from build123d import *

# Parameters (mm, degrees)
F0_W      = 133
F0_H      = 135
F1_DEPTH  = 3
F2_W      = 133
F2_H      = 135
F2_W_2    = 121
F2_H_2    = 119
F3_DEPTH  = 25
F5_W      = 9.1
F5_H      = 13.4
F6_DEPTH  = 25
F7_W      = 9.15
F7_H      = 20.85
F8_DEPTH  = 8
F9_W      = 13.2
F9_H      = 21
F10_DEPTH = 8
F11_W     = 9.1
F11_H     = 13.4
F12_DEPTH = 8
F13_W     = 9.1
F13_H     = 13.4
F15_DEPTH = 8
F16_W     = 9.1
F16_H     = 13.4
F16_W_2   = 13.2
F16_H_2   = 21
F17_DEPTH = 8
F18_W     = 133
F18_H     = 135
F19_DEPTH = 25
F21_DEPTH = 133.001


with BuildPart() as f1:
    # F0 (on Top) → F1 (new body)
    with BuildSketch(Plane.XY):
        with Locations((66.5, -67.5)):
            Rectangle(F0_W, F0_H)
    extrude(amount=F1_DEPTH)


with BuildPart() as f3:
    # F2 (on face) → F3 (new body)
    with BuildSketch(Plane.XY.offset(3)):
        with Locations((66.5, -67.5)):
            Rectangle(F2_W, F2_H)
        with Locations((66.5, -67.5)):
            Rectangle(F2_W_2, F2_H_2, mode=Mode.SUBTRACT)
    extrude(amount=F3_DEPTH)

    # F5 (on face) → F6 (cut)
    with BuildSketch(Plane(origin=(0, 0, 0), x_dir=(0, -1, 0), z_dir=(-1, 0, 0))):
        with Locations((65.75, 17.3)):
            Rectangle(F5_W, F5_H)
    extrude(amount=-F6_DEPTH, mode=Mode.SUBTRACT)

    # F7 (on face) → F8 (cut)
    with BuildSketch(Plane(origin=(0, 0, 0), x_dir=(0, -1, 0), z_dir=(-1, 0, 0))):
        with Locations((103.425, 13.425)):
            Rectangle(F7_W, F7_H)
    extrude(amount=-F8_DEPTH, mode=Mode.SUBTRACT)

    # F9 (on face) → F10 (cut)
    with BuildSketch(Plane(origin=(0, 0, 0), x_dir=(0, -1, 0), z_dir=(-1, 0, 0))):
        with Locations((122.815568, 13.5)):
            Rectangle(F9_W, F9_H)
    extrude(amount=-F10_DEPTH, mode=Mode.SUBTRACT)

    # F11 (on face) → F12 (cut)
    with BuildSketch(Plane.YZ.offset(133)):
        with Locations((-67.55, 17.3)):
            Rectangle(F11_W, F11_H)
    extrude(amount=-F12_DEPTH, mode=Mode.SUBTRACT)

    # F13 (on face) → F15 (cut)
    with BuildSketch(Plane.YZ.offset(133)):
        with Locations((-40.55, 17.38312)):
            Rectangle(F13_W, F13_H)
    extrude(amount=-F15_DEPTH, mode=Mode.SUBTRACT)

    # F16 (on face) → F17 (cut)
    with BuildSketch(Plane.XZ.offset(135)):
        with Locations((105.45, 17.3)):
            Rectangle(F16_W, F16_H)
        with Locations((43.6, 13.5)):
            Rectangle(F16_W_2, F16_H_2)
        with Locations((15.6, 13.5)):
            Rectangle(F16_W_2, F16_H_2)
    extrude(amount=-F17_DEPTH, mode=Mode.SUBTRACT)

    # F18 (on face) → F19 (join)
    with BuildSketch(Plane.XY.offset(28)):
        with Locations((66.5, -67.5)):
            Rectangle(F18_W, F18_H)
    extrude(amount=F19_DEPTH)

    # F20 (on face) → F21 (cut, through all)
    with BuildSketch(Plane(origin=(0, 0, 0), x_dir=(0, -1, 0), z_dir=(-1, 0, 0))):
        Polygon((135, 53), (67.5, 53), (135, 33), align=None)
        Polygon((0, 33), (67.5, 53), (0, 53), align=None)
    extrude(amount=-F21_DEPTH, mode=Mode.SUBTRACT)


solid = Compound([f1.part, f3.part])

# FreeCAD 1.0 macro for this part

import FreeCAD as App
import Part
import Sketcher

V = App.Vector
Q = App.Units.Quantity

doc = App.newDocument("Part")
body = doc.addObject("PartDesign::Body", "Body")

sketch1 = body.newObject("Sketcher::SketchObject", "Sketch")
sketch1.AttachmentSupport = (doc.getObject("XY_Plane"), [""])
sketch1.MapMode = "FlatFace"
sketch1.addGeometry([
    Part.LineSegment(V(0, 0, 0), V(0, -135, 0)),
    Part.LineSegment(V(0, -135, 0), V(133, -135, 0)),
    Part.LineSegment(V(133, -135, 0), V(133, 0, 0)),
    Part.LineSegment(V(133, 0, 0), V(0, 0, 0)),
], False)
sketch1.addConstraint([
    Sketcher.Constraint("Coincident", 0, 2, 1, 1),
    Sketcher.Constraint("Coincident", 1, 2, 2, 1),
    Sketcher.Constraint("Coincident", 2, 2, 3, 1),
    Sketcher.Constraint("Coincident", 3, 2, 0, 1),
    Sketcher.Constraint("Vertical", 0),
    Sketcher.Constraint("Horizontal", 1),
    Sketcher.Constraint("Vertical", 2),
    Sketcher.Constraint("Horizontal", 3),
    Sketcher.Constraint("Coincident", 3, 2, -1, 1),
    Sketcher.Constraint("DistanceX", 1, 1, 1, 2, Q("133 mm")),
    Sketcher.Constraint("DistanceY", 0, 2, 0, 1, Q("135 mm")),
])
pad1 = body.newObject("PartDesign::Pad", "Pad")
pad1.Profile = sketch1
pad1.Length = 3
body2 = doc.addObject("PartDesign::Body", "Body001")

sketch2 = body2.newObject("Sketcher::SketchObject", "Sketch001")
sketch2.AttachmentSupport = (doc.getObject("XY_Plane001"), [""])
sketch2.MapMode = "FlatFace"
sketch2.AttachmentOffset = App.Placement(V(0, 0, 3), App.Rotation())
sketch2.addGeometry([
    Part.LineSegment(V(0, 0, 0), V(0, -135, 0)),
    Part.LineSegment(V(0, -135, 0), V(133, -135, 0)),
    Part.LineSegment(V(133, -135, 0), V(133, 0, 0)),
    Part.LineSegment(V(133, 0, 0), V(0, 0, 0)),
    Part.LineSegment(V(127, -127, 0), V(6, -127, 0)),
    Part.LineSegment(V(6, -127, 0), V(6, -8, 0)),
    Part.LineSegment(V(6, -8, 0), V(127, -8, 0)),
    Part.LineSegment(V(127, -8, 0), V(127, -127, 0)),
], False)
sketch2.addConstraint([
    Sketcher.Constraint("Coincident", 0, 2, 1, 1),
    Sketcher.Constraint("Coincident", 1, 2, 2, 1),
    Sketcher.Constraint("Coincident", 2, 2, 3, 1),
    Sketcher.Constraint("Coincident", 3, 2, 0, 1),
    Sketcher.Constraint("Coincident", 4, 2, 5, 1),
    Sketcher.Constraint("Coincident", 5, 2, 6, 1),
    Sketcher.Constraint("Coincident", 6, 2, 7, 1),
    Sketcher.Constraint("Coincident", 7, 2, 4, 1),
    Sketcher.Constraint("Vertical", 0),
    Sketcher.Constraint("Horizontal", 1),
    Sketcher.Constraint("Vertical", 2),
    Sketcher.Constraint("Horizontal", 3),
    Sketcher.Constraint("Horizontal", 4),
    Sketcher.Constraint("Vertical", 5),
    Sketcher.Constraint("Horizontal", 6),
    Sketcher.Constraint("Vertical", 7),
    Sketcher.Constraint("Coincident", 3, 2, -1, 1),
    Sketcher.Constraint("DistanceX", 1, 1, 1, 2, Q("133 mm")),
    Sketcher.Constraint("DistanceX", 4, 2, 4, 1, Q("121 mm")),
    Sketcher.Constraint("DistanceY", 0, 2, 0, 1, Q("135 mm")),
    Sketcher.Constraint("DistanceY", 5, 1, 5, 2, Q("119 mm")),
    Sketcher.Constraint("DistanceX", -1, 1, 4, 2, Q("6 mm")),
    Sketcher.Constraint("DistanceY", 4, 2, -1, 1, Q("127 mm")),
])
pad2 = body2.newObject("PartDesign::Pad", "Pad001")
pad2.Profile = sketch2
pad2.Length = 25

sketch3 = body2.newObject("Sketcher::SketchObject", "Sketch002")
sketch3.AttachmentSupport = (doc.getObject("YZ_Plane001"), [""])
sketch3.MapMode = "FlatFace"
sketch3.addGeometry([
    Part.LineSegment(V(-61.2, 24, 0), V(-61.2, 10.6, 0)),
    Part.LineSegment(V(-61.2, 10.6, 0), V(-70.3, 10.6, 0)),
    Part.LineSegment(V(-70.3, 10.6, 0), V(-70.3, 24, 0)),
    Part.LineSegment(V(-70.3, 24, 0), V(-61.2, 24, 0)),
], False)
sketch3.addConstraint([
    Sketcher.Constraint("Coincident", 0, 2, 1, 1),
    Sketcher.Constraint("Coincident", 1, 2, 2, 1),
    Sketcher.Constraint("Coincident", 2, 2, 3, 1),
    Sketcher.Constraint("Coincident", 3, 2, 0, 1),
    Sketcher.Constraint("Vertical", 0),
    Sketcher.Constraint("Horizontal", 1),
    Sketcher.Constraint("Vertical", 2),
    Sketcher.Constraint("Horizontal", 3),
    Sketcher.Constraint("DistanceX", 1, 2, 1, 1, Q("9.1 mm")),
    Sketcher.Constraint("DistanceY", 0, 2, 0, 1, Q("13.4 mm")),
    Sketcher.Constraint("DistanceY", -1, 1, 2, 2, Q("24 mm")),
    Sketcher.Constraint("DistanceX", 0, 2, -1, 1, Q("61.2 mm")),
])
pocket1 = body2.newObject("PartDesign::Pocket", "Pocket")
pocket1.Profile = sketch3
pocket1.Length = 25
pocket1.Reversed = True

sketch4 = body2.newObject("Sketcher::SketchObject", "Sketch003")
sketch4.AttachmentSupport = (doc.getObject("YZ_Plane001"), [""])
sketch4.MapMode = "FlatFace"
sketch4.addGeometry([
    Part.LineSegment(V(-98.85, 23.85, 0), V(-98.85, 3, 0)),
    Part.LineSegment(V(-98.85, 3, 0), V(-108, 3, 0)),
    Part.LineSegment(V(-108, 3, 0), V(-108, 23.85, 0)),
    Part.LineSegment(V(-108, 23.85, 0), V(-98.85, 23.85, 0)),
], False)
sketch4.addConstraint([
    Sketcher.Constraint("Coincident", 0, 2, 1, 1),
    Sketcher.Constraint("Coincident", 1, 2, 2, 1),
    Sketcher.Constraint("Coincident", 2, 2, 3, 1),
    Sketcher.Constraint("Coincident", 3, 2, 0, 1),
    Sketcher.Constraint("Vertical", 0),
    Sketcher.Constraint("Horizontal", 1),
    Sketcher.Constraint("Vertical", 2),
    Sketcher.Constraint("Horizontal", 3),
    Sketcher.Constraint("DistanceY", -1, 1, 0, 2, Q("3 mm")),
    Sketcher.Constraint("DistanceX", 1, 2, -1, 1, Q("108 mm")),
    Sketcher.Constraint("DistanceX", 1, 2, 1, 1, Q("9.15 mm")),
    Sketcher.Constraint("DistanceY", 0, 2, 0, 1, Q("20.85 mm")),
])
pocket2 = body2.newObject("PartDesign::Pocket", "Pocket001")
pocket2.Profile = sketch4
pocket2.Length = 8
pocket2.Reversed = True

sketch5 = body2.newObject("Sketcher::SketchObject", "Sketch004")
sketch5.AttachmentSupport = (doc.getObject("YZ_Plane001"), [""])
sketch5.MapMode = "FlatFace"
sketch5.addGeometry([
    Part.LineSegment(V(-116.215568, 24, 0), V(-116.215568, 3, 0)),
    Part.LineSegment(V(-116.215568, 3, 0), V(-129.415568, 3, 0)),
    Part.LineSegment(V(-129.415568, 3, 0), V(-129.415568, 24, 0)),
    Part.LineSegment(V(-129.415568, 24, 0), V(-116.215568, 24, 0)),
], False)
sketch5.addConstraint([
    Sketcher.Constraint("Coincident", 0, 2, 1, 1),
    Sketcher.Constraint("Coincident", 1, 2, 2, 1),
    Sketcher.Constraint("Coincident", 2, 2, 3, 1),
    Sketcher.Constraint("Coincident", 3, 2, 0, 1),
    Sketcher.Constraint("Vertical", 0),
    Sketcher.Constraint("Horizontal", 1),
    Sketcher.Constraint("Vertical", 2),
    Sketcher.Constraint("Horizontal", 3),
    Sketcher.Constraint("DistanceY", 0, 2, 0, 1, Q("21 mm")),
    Sketcher.Constraint("DistanceX", 1, 2, 1, 1, Q("13.2 mm")),
    Sketcher.Constraint("DistanceY", -1, 1, 0, 2, Q("3 mm")),
    Sketcher.Constraint("DistanceX", 0, 2, -1, 1, Q("116.215568 mm")),
])
pocket3 = body2.newObject("PartDesign::Pocket", "Pocket002")
pocket3.Profile = sketch5
pocket3.Length = 8
pocket3.Reversed = True

sketch6 = body2.newObject("Sketcher::SketchObject", "Sketch005")
sketch6.AttachmentSupport = (doc.getObject("YZ_Plane001"), [""])
sketch6.MapMode = "FlatFace"
sketch6.AttachmentOffset = App.Placement(V(0, 0, 133), App.Rotation())
sketch6.addGeometry([
    Part.LineSegment(V(-72.1, 24, 0), V(-72.1, 10.6, 0)),
    Part.LineSegment(V(-72.1, 10.6, 0), V(-63, 10.6, 0)),
    Part.LineSegment(V(-63, 10.6, 0), V(-63, 24, 0)),
    Part.LineSegment(V(-63, 24, 0), V(-72.1, 24, 0)),
], False)
sketch6.addConstraint([
    Sketcher.Constraint("Coincident", 0, 2, 1, 1),
    Sketcher.Constraint("Coincident", 1, 2, 2, 1),
    Sketcher.Constraint("Coincident", 2, 2, 3, 1),
    Sketcher.Constraint("Coincident", 3, 2, 0, 1),
    Sketcher.Constraint("Vertical", 0),
    Sketcher.Constraint("Horizontal", 1),
    Sketcher.Constraint("Vertical", 2),
    Sketcher.Constraint("Horizontal", 3),
    Sketcher.Constraint("DistanceX", 1, 1, 1, 2, Q("9.1 mm")),
    Sketcher.Constraint("DistanceY", 0, 2, 0, 1, Q("13.4 mm")),
    Sketcher.Constraint("DistanceX", 1, 2, -1, 1, Q("63 mm")),
    Sketcher.Constraint("DistanceY", -1, 1, 2, 2, Q("24 mm")),
])
pocket4 = body2.newObject("PartDesign::Pocket", "Pocket003")
pocket4.Profile = sketch6
pocket4.Length = 8

sketch7 = body2.newObject("Sketcher::SketchObject", "Sketch006")
sketch7.AttachmentSupport = (doc.getObject("YZ_Plane001"), [""])
sketch7.MapMode = "FlatFace"
sketch7.AttachmentOffset = App.Placement(V(0, 0, 133), App.Rotation())
sketch7.addGeometry([
    Part.LineSegment(V(-45.1, 24.08312, 0), V(-45.1, 10.68312, 0)),
    Part.LineSegment(V(-45.1, 10.68312, 0), V(-36, 10.68312, 0)),
    Part.LineSegment(V(-36, 10.68312, 0), V(-36, 24.08312, 0)),
    Part.LineSegment(V(-36, 24.08312, 0), V(-45.1, 24.08312, 0)),
], False)
sketch7.addConstraint([
    Sketcher.Constraint("Coincident", 0, 2, 1, 1),
    Sketcher.Constraint("Coincident", 1, 2, 2, 1),
    Sketcher.Constraint("Coincident", 2, 2, 3, 1),
    Sketcher.Constraint("Coincident", 3, 2, 0, 1),
    Sketcher.Constraint("Vertical", 0),
    Sketcher.Constraint("Horizontal", 1),
    Sketcher.Constraint("Vertical", 2),
    Sketcher.Constraint("Horizontal", 3),
    Sketcher.Constraint("DistanceX", 1, 1, 1, 2, Q("9.1 mm")),
    Sketcher.Constraint("DistanceY", 0, 2, 0, 1, Q("13.4 mm")),
    Sketcher.Constraint("DistanceX", 1, 2, -1, 1, Q("36 mm")),
    Sketcher.Constraint("DistanceY", -1, 1, 0, 2, Q("10.68312 mm")),
])
pocket5 = body2.newObject("PartDesign::Pocket", "Pocket004")
pocket5.Profile = sketch7
pocket5.Length = 8

sketch8 = body2.newObject("Sketcher::SketchObject", "Sketch007")
sketch8.AttachmentSupport = (doc.getObject("XZ_Plane001"), [""])
sketch8.MapMode = "FlatFace"
sketch8.AttachmentOffset = App.Placement(V(0, 0, 135), App.Rotation())
sketch8.addGeometry([
    Part.LineSegment(V(100.9, 24, 0), V(100.9, 10.6, 0)),
    Part.LineSegment(V(100.9, 10.6, 0), V(110, 10.6, 0)),
    Part.LineSegment(V(110, 10.6, 0), V(110, 24, 0)),
    Part.LineSegment(V(110, 24, 0), V(100.9, 24, 0)),
    Part.LineSegment(V(37, 24, 0), V(37, 3, 0)),
    Part.LineSegment(V(37, 3, 0), V(50.2, 3, 0)),
    Part.LineSegment(V(50.2, 3, 0), V(50.2, 24, 0)),
    Part.LineSegment(V(50.2, 24, 0), V(37, 24, 0)),
    Part.LineSegment(V(9, 24, 0), V(9, 3, 0)),
    Part.LineSegment(V(9, 3, 0), V(22.2, 3, 0)),
    Part.LineSegment(V(22.2, 3, 0), V(22.2, 24, 0)),
    Part.LineSegment(V(22.2, 24, 0), V(9, 24, 0)),
], False)
sketch8.addConstraint([
    Sketcher.Constraint("Coincident", 0, 2, 1, 1),
    Sketcher.Constraint("Coincident", 1, 2, 2, 1),
    Sketcher.Constraint("Coincident", 2, 2, 3, 1),
    Sketcher.Constraint("Coincident", 3, 2, 0, 1),
    Sketcher.Constraint("Coincident", 4, 2, 5, 1),
    Sketcher.Constraint("Coincident", 5, 2, 6, 1),
    Sketcher.Constraint("Coincident", 6, 2, 7, 1),
    Sketcher.Constraint("Coincident", 7, 2, 4, 1),
    Sketcher.Constraint("Coincident", 8, 2, 9, 1),
    Sketcher.Constraint("Coincident", 9, 2, 10, 1),
    Sketcher.Constraint("Coincident", 10, 2, 11, 1),
    Sketcher.Constraint("Coincident", 11, 2, 8, 1),
    Sketcher.Constraint("Vertical", 0),
    Sketcher.Constraint("Horizontal", 1),
    Sketcher.Constraint("Vertical", 2),
    Sketcher.Constraint("Horizontal", 3),
    Sketcher.Constraint("Vertical", 4),
    Sketcher.Constraint("Horizontal", 5),
    Sketcher.Constraint("Vertical", 6),
    Sketcher.Constraint("Horizontal", 7),
    Sketcher.Constraint("Vertical", 8),
    Sketcher.Constraint("Horizontal", 9),
    Sketcher.Constraint("Vertical", 10),
    Sketcher.Constraint("Horizontal", 11),
    Sketcher.Constraint("Horizontal", 3, 2, 6, 2),
    Sketcher.Constraint("Horizontal", 5, 2, 8, 2),
    Sketcher.Constraint("Horizontal", 7, 2, 10, 2),
    Sketcher.Constraint("Equal", 7, 9),
    Sketcher.Constraint("DistanceY", 4, 2, 4, 1, Q("21 mm")),
    Sketcher.Constraint("DistanceX", 1, 1, 1, 2, Q("9.1 mm")),
    Sketcher.Constraint("DistanceX", 5, 1, 5, 2, Q("13.2 mm")),
    Sketcher.Constraint("DistanceY", 0, 2, 0, 1, Q("13.4 mm")),
    Sketcher.Constraint("DistanceX", -1, 1, 1, 2, Q("110 mm")),
    Sketcher.Constraint("DistanceY", -1, 1, 2, 2, Q("24 mm")),
    Sketcher.Constraint("DistanceX", -1, 1, 4, 2, Q("37 mm")),
    Sketcher.Constraint("DistanceX", -1, 1, 8, 2, Q("9 mm")),
])
pocket6 = body2.newObject("PartDesign::Pocket", "Pocket005")
pocket6.Profile = sketch8
pocket6.Length = 8

sketch9 = body2.newObject("Sketcher::SketchObject", "Sketch008")
sketch9.AttachmentSupport = (doc.getObject("XY_Plane001"), [""])
sketch9.MapMode = "FlatFace"
sketch9.AttachmentOffset = App.Placement(V(0, 0, 28), App.Rotation())
sketch9.addGeometry([
    Part.LineSegment(V(0, 0, 0), V(0, -135, 0)),
    Part.LineSegment(V(0, -135, 0), V(133, -135, 0)),
    Part.LineSegment(V(133, -135, 0), V(133, 0, 0)),
    Part.LineSegment(V(133, 0, 0), V(0, 0, 0)),
], False)
sketch9.addConstraint([
    Sketcher.Constraint("Coincident", 0, 2, 1, 1),
    Sketcher.Constraint("Coincident", 1, 2, 2, 1),
    Sketcher.Constraint("Coincident", 2, 2, 3, 1),
    Sketcher.Constraint("Coincident", 3, 2, 0, 1),
    Sketcher.Constraint("Vertical", 0),
    Sketcher.Constraint("Horizontal", 1),
    Sketcher.Constraint("Vertical", 2),
    Sketcher.Constraint("Horizontal", 3),
    Sketcher.Constraint("Coincident", 3, 2, -1, 1),
    Sketcher.Constraint("DistanceX", 1, 1, 1, 2, Q("133 mm")),
    Sketcher.Constraint("DistanceY", 0, 2, 0, 1, Q("135 mm")),
])
pad3 = body2.newObject("PartDesign::Pad", "Pad002")
pad3.Profile = sketch9
pad3.Length = 25

sketch10 = body2.newObject("Sketcher::SketchObject", "Sketch009")
sketch10.AttachmentSupport = (doc.getObject("YZ_Plane001"), [""])
sketch10.MapMode = "FlatFace"
sketch10.addGeometry([
    Part.LineSegment(V(-135, 53, 0), V(-67.5, 53, 0)),
    Part.LineSegment(V(-67.5, 53, 0), V(-135, 33, 0)),
    Part.LineSegment(V(-135, 33, 0), V(-135, 53, 0)),
    Part.LineSegment(V(0, 33, 0), V(-67.5, 53, 0)),
    Part.LineSegment(V(-67.5, 53, 0), V(0, 53, 0)),
    Part.LineSegment(V(0, 53, 0), V(0, 33, 0)),
], False)
sketch10.addConstraint([
    Sketcher.Constraint("Coincident", 0, 2, 1, 1),
    Sketcher.Constraint("Coincident", 1, 2, 2, 1),
    Sketcher.Constraint("Coincident", 2, 2, 0, 1),
    Sketcher.Constraint("Coincident", 3, 2, 4, 1),
    Sketcher.Constraint("Coincident", 4, 2, 5, 1),
    Sketcher.Constraint("Coincident", 5, 2, 3, 1),
    Sketcher.Constraint("Horizontal", 0),
    Sketcher.Constraint("Vertical", 2),
    Sketcher.Constraint("Horizontal", 4),
    Sketcher.Constraint("Vertical", 5),
    Sketcher.Constraint("Coincident", 3, 2, 0, 2),
    Sketcher.Constraint("PointOnObject", 4, 2, -2),
    Sketcher.Constraint("Horizontal", 1, 2, 5, 2),
    Sketcher.Constraint("Equal", 0, 4),
    Sketcher.Constraint("DistanceY", 2, 1, 2, 2, Q("20 mm")),
    Sketcher.Constraint("DistanceX", 0, 1, 0, 2, Q("67.5 mm")),
    Sketcher.Constraint("DistanceY", -1, 1, 0, 2, Q("53 mm")),
])
pocket7 = body2.newObject("PartDesign::Pocket", "Pocket006")
pocket7.Profile = sketch10
pocket7.Type = "ThroughAll"
pocket7.Reversed = True

doc.recompute()
